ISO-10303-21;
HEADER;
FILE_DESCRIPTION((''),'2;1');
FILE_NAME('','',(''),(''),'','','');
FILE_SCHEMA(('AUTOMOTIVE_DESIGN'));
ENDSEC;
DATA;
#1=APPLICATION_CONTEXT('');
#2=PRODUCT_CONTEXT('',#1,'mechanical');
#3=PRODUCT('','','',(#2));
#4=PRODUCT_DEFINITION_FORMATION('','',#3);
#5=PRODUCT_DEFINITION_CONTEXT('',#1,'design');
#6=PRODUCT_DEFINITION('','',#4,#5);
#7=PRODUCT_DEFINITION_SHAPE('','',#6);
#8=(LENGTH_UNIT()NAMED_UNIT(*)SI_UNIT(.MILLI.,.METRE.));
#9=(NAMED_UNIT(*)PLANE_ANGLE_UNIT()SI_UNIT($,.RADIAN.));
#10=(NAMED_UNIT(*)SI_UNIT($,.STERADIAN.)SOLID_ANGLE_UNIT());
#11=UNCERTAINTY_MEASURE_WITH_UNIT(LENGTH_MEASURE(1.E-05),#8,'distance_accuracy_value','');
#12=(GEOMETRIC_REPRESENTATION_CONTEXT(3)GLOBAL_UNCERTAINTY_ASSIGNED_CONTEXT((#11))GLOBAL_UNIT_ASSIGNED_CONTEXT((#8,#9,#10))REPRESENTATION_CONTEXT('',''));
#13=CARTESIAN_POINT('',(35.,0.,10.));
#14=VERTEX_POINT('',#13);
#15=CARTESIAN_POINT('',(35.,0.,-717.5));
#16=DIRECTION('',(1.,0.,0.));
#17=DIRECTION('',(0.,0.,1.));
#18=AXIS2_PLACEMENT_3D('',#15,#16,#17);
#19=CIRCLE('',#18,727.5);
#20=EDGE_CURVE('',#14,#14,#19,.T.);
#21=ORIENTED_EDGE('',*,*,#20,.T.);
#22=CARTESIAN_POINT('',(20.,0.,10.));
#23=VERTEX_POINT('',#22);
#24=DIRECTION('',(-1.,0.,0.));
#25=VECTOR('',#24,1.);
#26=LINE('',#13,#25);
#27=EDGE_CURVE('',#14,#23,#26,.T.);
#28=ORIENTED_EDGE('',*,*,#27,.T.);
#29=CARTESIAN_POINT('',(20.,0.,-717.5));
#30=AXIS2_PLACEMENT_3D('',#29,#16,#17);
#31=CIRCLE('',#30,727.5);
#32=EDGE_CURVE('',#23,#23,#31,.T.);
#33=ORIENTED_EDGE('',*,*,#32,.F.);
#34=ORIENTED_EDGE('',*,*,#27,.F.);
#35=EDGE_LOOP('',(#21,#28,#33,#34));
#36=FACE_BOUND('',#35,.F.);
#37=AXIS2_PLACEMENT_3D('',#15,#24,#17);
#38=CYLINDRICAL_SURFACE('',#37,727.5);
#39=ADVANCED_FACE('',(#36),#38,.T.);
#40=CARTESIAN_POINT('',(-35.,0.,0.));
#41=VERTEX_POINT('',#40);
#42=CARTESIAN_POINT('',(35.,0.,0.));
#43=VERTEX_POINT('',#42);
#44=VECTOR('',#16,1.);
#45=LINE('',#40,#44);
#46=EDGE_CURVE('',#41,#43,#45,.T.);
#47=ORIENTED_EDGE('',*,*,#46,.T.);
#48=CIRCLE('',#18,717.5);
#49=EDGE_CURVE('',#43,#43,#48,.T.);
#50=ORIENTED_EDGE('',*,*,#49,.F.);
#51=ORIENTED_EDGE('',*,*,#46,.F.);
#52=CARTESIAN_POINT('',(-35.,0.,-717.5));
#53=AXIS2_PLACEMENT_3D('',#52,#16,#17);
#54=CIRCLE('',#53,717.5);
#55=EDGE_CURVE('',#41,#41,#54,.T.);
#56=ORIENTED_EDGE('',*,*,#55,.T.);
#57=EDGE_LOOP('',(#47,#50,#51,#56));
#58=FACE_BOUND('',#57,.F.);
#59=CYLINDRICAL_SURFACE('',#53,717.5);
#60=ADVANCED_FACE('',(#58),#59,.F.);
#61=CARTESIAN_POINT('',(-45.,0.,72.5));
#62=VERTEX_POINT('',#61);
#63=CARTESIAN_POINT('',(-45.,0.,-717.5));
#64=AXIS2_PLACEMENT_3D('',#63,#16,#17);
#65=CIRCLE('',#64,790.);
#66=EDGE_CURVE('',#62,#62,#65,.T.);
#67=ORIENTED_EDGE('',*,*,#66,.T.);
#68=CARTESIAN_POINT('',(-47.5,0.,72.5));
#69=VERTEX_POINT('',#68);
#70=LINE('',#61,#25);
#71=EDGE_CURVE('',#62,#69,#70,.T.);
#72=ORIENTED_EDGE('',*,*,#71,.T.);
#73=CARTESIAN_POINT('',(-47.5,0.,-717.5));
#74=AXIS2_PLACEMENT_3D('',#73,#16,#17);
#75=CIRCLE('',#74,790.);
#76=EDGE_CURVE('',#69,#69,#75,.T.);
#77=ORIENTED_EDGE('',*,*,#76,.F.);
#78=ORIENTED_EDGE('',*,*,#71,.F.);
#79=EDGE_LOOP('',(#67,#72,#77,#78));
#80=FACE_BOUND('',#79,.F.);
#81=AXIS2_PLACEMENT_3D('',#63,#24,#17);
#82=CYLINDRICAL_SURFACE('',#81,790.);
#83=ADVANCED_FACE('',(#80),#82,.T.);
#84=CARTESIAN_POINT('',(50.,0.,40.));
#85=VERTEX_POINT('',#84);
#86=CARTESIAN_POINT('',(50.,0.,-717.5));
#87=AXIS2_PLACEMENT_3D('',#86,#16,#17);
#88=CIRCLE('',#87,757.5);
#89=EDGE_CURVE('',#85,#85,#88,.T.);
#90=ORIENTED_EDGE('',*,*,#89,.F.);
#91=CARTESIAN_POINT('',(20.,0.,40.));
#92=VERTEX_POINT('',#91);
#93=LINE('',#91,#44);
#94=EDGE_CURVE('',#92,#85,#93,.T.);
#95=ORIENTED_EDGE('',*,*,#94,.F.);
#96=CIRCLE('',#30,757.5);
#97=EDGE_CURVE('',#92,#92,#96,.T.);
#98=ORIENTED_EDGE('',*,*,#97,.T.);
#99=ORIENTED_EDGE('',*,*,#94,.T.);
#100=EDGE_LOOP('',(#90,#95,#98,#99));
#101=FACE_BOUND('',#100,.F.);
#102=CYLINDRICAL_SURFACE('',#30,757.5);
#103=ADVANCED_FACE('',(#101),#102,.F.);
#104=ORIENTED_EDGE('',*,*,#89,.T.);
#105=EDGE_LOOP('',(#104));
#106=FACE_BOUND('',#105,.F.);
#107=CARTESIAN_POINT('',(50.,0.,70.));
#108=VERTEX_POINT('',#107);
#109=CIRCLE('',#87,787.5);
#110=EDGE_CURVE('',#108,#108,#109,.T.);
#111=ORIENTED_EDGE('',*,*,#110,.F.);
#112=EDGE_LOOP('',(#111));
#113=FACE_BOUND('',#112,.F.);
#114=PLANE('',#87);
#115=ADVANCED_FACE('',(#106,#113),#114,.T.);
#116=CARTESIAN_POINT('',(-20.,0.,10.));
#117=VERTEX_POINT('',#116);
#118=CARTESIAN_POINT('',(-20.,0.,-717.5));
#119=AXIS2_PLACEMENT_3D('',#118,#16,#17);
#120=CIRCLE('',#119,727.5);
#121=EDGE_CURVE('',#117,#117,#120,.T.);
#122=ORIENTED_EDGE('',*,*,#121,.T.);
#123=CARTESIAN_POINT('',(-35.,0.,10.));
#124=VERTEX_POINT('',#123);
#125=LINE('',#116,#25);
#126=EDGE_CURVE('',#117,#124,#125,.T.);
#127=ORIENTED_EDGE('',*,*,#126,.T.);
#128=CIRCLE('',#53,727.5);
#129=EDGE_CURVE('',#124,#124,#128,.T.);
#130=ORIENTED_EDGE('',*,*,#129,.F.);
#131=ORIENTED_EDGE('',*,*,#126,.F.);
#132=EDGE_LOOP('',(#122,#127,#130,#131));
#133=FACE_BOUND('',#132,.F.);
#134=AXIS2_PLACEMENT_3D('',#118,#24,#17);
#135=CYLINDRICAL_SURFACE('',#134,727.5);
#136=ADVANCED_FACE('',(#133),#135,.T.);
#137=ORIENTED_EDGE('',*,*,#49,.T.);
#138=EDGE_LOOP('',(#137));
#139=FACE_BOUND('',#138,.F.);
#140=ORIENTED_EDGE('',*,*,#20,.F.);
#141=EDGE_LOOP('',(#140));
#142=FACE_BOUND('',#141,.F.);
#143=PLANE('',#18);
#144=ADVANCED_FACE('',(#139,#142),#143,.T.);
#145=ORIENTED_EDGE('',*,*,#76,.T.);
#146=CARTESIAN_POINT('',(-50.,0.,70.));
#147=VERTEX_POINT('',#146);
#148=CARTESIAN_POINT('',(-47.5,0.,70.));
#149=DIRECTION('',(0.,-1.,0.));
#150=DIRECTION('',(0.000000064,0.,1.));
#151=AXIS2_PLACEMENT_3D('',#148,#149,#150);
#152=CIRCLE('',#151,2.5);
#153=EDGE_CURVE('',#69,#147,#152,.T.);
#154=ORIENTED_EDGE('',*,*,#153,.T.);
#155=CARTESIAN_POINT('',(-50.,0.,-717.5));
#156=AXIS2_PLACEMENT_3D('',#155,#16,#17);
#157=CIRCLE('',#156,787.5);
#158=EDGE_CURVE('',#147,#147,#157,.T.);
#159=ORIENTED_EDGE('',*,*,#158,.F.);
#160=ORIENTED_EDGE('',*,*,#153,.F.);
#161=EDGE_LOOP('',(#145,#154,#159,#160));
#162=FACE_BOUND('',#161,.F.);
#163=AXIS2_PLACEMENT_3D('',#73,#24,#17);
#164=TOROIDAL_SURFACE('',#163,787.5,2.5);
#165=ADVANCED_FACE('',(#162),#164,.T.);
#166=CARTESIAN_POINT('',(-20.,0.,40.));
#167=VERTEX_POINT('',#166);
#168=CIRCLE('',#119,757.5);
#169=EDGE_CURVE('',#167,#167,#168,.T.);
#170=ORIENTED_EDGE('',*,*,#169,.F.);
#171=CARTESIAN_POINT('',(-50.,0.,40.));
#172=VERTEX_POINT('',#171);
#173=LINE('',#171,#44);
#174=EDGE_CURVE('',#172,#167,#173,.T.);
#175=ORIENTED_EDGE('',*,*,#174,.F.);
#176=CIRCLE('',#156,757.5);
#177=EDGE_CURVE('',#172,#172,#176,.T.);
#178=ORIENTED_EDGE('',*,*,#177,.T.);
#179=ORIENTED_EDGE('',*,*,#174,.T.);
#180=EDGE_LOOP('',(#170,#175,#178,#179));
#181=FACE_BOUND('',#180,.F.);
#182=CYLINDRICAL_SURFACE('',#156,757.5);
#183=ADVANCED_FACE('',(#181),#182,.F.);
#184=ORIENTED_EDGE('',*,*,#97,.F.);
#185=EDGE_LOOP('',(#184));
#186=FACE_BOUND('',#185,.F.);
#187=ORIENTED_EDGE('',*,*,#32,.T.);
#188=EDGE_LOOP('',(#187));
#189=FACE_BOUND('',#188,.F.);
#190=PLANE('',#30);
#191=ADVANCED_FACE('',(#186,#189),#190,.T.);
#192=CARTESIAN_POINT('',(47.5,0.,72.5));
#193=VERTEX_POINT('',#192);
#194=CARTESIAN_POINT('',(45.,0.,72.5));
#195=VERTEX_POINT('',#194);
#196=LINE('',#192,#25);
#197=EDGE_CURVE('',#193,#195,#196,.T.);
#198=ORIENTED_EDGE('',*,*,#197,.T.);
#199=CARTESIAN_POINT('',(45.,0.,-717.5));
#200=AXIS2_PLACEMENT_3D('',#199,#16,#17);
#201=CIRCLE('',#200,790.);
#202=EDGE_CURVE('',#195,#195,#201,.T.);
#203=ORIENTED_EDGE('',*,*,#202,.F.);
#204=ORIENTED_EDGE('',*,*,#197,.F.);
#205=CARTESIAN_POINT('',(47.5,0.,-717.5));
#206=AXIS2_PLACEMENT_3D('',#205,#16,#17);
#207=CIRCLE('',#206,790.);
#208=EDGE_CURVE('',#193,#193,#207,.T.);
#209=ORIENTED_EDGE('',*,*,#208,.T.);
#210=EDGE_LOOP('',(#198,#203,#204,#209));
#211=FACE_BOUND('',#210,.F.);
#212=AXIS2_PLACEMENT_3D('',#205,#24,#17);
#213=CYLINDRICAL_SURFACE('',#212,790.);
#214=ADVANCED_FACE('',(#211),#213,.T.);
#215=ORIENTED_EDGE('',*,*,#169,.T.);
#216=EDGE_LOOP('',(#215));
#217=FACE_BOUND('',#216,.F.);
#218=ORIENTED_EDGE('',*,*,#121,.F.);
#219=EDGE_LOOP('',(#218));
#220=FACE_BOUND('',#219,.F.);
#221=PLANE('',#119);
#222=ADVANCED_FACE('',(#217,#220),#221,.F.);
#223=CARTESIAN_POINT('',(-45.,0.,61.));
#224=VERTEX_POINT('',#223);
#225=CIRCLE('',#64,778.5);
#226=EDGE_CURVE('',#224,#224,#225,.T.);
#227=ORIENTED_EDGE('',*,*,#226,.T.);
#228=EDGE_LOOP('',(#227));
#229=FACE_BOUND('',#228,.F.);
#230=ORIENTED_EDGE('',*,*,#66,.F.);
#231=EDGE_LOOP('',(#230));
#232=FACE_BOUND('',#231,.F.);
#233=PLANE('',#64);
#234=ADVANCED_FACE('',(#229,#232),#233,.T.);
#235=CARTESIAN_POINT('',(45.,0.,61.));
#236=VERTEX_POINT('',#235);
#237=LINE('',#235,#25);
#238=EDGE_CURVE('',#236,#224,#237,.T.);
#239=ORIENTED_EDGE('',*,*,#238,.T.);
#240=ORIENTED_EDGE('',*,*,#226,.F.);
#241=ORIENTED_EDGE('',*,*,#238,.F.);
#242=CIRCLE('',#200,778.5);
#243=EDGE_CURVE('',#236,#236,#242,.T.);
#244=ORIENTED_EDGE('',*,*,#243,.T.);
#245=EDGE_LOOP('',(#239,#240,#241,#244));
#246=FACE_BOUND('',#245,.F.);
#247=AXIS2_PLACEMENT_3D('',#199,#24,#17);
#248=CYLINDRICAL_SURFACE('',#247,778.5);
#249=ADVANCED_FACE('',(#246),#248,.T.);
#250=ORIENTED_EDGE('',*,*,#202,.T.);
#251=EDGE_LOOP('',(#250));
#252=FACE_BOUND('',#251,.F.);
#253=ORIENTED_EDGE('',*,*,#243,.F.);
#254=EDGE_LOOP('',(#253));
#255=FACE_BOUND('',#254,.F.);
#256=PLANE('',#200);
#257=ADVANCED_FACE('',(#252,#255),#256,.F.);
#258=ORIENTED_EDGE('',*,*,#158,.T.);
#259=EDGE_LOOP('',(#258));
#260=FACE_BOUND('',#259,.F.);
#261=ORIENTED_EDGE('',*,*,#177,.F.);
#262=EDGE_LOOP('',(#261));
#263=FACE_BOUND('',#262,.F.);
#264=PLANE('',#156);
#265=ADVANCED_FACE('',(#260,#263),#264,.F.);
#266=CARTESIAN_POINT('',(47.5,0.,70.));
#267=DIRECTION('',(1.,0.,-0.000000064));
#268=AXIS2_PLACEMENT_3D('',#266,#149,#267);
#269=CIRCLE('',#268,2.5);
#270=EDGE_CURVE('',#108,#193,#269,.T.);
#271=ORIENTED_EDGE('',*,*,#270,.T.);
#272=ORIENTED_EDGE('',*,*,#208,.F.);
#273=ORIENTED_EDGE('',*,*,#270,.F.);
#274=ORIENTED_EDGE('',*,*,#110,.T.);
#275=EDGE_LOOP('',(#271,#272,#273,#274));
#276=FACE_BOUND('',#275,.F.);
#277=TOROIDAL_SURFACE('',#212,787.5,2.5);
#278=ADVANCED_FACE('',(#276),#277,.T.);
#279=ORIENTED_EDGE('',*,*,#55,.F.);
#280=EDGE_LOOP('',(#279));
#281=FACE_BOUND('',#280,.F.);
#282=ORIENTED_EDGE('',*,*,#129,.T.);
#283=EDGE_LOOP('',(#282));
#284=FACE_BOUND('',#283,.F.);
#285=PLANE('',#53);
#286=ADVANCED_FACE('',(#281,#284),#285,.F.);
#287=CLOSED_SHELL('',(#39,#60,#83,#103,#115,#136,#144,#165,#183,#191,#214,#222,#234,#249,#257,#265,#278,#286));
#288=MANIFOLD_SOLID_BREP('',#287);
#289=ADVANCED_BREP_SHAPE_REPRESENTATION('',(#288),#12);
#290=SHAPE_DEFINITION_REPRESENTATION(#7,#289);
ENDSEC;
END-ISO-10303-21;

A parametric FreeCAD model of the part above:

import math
import FreeCAD as App
import Part
import Sketcher
from FreeCAD import Vector

doc = App.newDocument("Part")
body = doc.addObject("PartDesign::Body", "Body")

# Sketch on XZ plane
sketch1 = doc.addObject("Sketcher::SketchObject", "Sketch")
body.addObject(sketch1)
sketch1.AttachmentSupport = (doc.XZ_Plane, [""])
sketch1.MapMode = "FlatFace"
sketch1.addGeometry(Part.LineSegment(Vector(35, 0, 0), Vector(35, 10, 0)), False)
sketch1.addGeometry(Part.LineSegment(Vector(35, 10, 0), Vector(20, 10, 0)), False)
sketch1.addGeometry(Part.LineSegment(Vector(20, 10, 0), Vector(20, 40, 0)), False)
sketch1.addGeometry(Part.LineSegment(Vector(20, 40, 0), Vector(50, 40, 0)), False)
sketch1.addGeometry(Part.LineSegment(Vector(50, 40, 0), Vector(50, 70, 0)), False)
sketch1.addGeometry(Part.ArcOfCircle(Part.Circle(Vector(47.5, 70, 0), Vector(0, 0, 1), 2.5), math.radians(-0.000004), math.radians(90.000004)), False)
sketch1.addGeometry(Part.LineSegment(Vector(47.5, 72.5, 0), Vector(45, 72.5, 0)), False)
sketch1.addGeometry(Part.LineSegment(Vector(45, 72.5, 0), Vector(45, 61, 0)), False)
sketch1.addGeometry(Part.LineSegment(Vector(45, 61, 0), Vector(-45, 61, 0)), False)
sketch1.addGeometry(Part.LineSegment(Vector(-45, 61, 0), Vector(-45, 72.5, 0)), False)
sketch1.addGeometry(Part.LineSegment(Vector(-45, 72.5, 0), Vector(-47.5, 72.5, 0)), False)
sketch1.addGeometry(Part.ArcOfCircle(Part.Circle(Vector(-47.5, 70, 0), Vector(0, 0, 1), 2.5), math.radians(89.999996), math.radians(180.000004)), False)
sketch1.addGeometry(Part.LineSegment(Vector(-50, 70, 0), Vector(-50, 40, 0)), False)
sketch1.addGeometry(Part.LineSegment(Vector(-50, 40, 0), Vector(-20, 40, 0)), False)
sketch1.addGeometry(Part.LineSegment(Vector(-20, 40, 0), Vector(-20, 10, 0)), False)
sketch1.addGeometry(Part.LineSegment(Vector(-20, 10, 0), Vector(-35, 10, 0)), False)
sketch1.addGeometry(Part.LineSegment(Vector(-35, 10, 0), Vector(-35, 0, 0)), False)
sketch1.addGeometry(Part.LineSegment(Vector(-35, 0, 0), Vector(35, 0, 0)), False)
sketch1.addGeometry(Part.LineSegment(Vector(-50, -717.5, 0), Vector(50, -717.5, 0)), True)  # axis
sketch1.addConstraint(Sketcher.Constraint("Coincident", 0, 2, 1, 1))
sketch1.addConstraint(Sketcher.Constraint("Coincident", 1, 2, 2, 1))
sketch1.addConstraint(Sketcher.Constraint("Coincident", 2, 2, 3, 1))
sketch1.addConstraint(Sketcher.Constraint("Coincident", 3, 2, 4, 1))
sketch1.addConstraint(Sketcher.Constraint("Tangent", 4, 2, 5, 1))
sketch1.addConstraint(Sketcher.Constraint("Tangent", 5, 2, 6, 1))
sketch1.addConstraint(Sketcher.Constraint("Coincident", 6, 2, 7, 1))
sketch1.addConstraint(Sketcher.Constraint("Coincident", 7, 2, 8, 1))
sketch1.addConstraint(Sketcher.Constraint("Coincident", 8, 2, 9, 1))
sketch1.addConstraint(Sketcher.Constraint("Coincident", 9, 2, 10, 1))
sketch1.addConstraint(Sketcher.Constraint("Tangent", 10, 2, 11, 1))
sketch1.addConstraint(Sketcher.Constraint("Tangent", 11, 2, 12, 1))
sketch1.addConstraint(Sketcher.Constraint("Coincident", 12, 2, 13, 1))
sketch1.addConstraint(Sketcher.Constraint("Coincident", 13, 2, 14, 1))
sketch1.addConstraint(Sketcher.Constraint("Coincident", 14, 2, 15, 1))
sketch1.addConstraint(Sketcher.Constraint("Coincident", 15, 2, 16, 1))
sketch1.addConstraint(Sketcher.Constraint("Coincident", 16, 2, 17, 1))
sketch1.addConstraint(Sketcher.Constraint("Coincident", 17, 2, 0, 1))
sketch1.addConstraint(Sketcher.Constraint("Vertical", 0))
sketch1.addConstraint(Sketcher.Constraint("Horizontal", 1))
sketch1.addConstraint(Sketcher.Constraint("Vertical", 2))
sketch1.addConstraint(Sketcher.Constraint("Horizontal", 3))
sketch1.addConstraint(Sketcher.Constraint("Vertical", 4))
sketch1.addConstraint(Sketcher.Constraint("Horizontal", 6))
sketch1.addConstraint(Sketcher.Constraint("Vertical", 7))
sketch1.addConstraint(Sketcher.Constraint("Horizontal", 8))
sketch1.addConstraint(Sketcher.Constraint("Vertical", 9))
sketch1.addConstraint(Sketcher.Constraint("Horizontal", 10))
sketch1.addConstraint(Sketcher.Constraint("Vertical", 12))
sketch1.addConstraint(Sketcher.Constraint("Horizontal", 13))
sketch1.addConstraint(Sketcher.Constraint("Vertical", 14))
sketch1.addConstraint(Sketcher.Constraint("Horizontal", 15))
sketch1.addConstraint(Sketcher.Constraint("Vertical", 16))
sketch1.addConstraint(Sketcher.Constraint("Horizontal", 17))
sketch1.addConstraint(Sketcher.Constraint("Horizontal", 18))
sketch1.addConstraint(Sketcher.Constraint("Equal", 5, 11))
sketch1.addConstraint(Sketcher.Constraint("Symmetric", 16, 2, 17, 2, -1, 1))
sketch1.addConstraint(Sketcher.Constraint("Symmetric", 5, 3, 11, 3, -2))
sketch1.addConstraint(Sketcher.Constraint("Symmetric", 2, 2, 13, 2, -2))
sketch1.addConstraint(Sketcher.Constraint("Horizontal", 1, 2, 14, 2))
sketch1.addConstraint(Sketcher.Constraint("Vertical", 12, 2, 18, 1))
sketch1.addConstraint(Sketcher.Constraint("Vertical", 4, 2, 18, 2))
sketch1.addConstraint(Sketcher.Constraint("Equal", 6, 10))
sketch1.addConstraint(Sketcher.Constraint("Equal", 13, 2))
sketch1.addConstraint(Sketcher.Constraint("Equal", 2, 4))
sketch1.addConstraint(Sketcher.Constraint("Radius", 5, 2.5))
sketch1.addConstraint(Sketcher.Constraint("DistanceX", 1, 2, 1, 1, 15.0))
sketch1.addConstraint(Sketcher.Constraint("DistanceX", 3, 1, 3, 2, 30.0))
sketch1.addConstraint(Sketcher.Constraint("DistanceX", 8, 2, 8, 1, 90.0))
sketch1.addConstraint(Sketcher.Constraint("DistanceX", 17, 1, 17, 2, 70.0))
sketch1.addConstraint(Sketcher.Constraint("DistanceY", 0, 1, 0, 2, 10.0))
sketch1.addConstraint(Sketcher.Constraint("DistanceY", 7, 2, 7, 1, 11.5))
sketch1.addConstraint(Sketcher.Constraint("DistanceY", 18, 1, -1, 1, 717.5))
revolution = doc.addObject("PartDesign::Revolution", "Revolution")
body.addObject(revolution)
revolution.Profile = sketch1
revolution.ReferenceAxis = (sketch1, ["Axis0"])
revolution.Angle = 360

doc.recompute()
